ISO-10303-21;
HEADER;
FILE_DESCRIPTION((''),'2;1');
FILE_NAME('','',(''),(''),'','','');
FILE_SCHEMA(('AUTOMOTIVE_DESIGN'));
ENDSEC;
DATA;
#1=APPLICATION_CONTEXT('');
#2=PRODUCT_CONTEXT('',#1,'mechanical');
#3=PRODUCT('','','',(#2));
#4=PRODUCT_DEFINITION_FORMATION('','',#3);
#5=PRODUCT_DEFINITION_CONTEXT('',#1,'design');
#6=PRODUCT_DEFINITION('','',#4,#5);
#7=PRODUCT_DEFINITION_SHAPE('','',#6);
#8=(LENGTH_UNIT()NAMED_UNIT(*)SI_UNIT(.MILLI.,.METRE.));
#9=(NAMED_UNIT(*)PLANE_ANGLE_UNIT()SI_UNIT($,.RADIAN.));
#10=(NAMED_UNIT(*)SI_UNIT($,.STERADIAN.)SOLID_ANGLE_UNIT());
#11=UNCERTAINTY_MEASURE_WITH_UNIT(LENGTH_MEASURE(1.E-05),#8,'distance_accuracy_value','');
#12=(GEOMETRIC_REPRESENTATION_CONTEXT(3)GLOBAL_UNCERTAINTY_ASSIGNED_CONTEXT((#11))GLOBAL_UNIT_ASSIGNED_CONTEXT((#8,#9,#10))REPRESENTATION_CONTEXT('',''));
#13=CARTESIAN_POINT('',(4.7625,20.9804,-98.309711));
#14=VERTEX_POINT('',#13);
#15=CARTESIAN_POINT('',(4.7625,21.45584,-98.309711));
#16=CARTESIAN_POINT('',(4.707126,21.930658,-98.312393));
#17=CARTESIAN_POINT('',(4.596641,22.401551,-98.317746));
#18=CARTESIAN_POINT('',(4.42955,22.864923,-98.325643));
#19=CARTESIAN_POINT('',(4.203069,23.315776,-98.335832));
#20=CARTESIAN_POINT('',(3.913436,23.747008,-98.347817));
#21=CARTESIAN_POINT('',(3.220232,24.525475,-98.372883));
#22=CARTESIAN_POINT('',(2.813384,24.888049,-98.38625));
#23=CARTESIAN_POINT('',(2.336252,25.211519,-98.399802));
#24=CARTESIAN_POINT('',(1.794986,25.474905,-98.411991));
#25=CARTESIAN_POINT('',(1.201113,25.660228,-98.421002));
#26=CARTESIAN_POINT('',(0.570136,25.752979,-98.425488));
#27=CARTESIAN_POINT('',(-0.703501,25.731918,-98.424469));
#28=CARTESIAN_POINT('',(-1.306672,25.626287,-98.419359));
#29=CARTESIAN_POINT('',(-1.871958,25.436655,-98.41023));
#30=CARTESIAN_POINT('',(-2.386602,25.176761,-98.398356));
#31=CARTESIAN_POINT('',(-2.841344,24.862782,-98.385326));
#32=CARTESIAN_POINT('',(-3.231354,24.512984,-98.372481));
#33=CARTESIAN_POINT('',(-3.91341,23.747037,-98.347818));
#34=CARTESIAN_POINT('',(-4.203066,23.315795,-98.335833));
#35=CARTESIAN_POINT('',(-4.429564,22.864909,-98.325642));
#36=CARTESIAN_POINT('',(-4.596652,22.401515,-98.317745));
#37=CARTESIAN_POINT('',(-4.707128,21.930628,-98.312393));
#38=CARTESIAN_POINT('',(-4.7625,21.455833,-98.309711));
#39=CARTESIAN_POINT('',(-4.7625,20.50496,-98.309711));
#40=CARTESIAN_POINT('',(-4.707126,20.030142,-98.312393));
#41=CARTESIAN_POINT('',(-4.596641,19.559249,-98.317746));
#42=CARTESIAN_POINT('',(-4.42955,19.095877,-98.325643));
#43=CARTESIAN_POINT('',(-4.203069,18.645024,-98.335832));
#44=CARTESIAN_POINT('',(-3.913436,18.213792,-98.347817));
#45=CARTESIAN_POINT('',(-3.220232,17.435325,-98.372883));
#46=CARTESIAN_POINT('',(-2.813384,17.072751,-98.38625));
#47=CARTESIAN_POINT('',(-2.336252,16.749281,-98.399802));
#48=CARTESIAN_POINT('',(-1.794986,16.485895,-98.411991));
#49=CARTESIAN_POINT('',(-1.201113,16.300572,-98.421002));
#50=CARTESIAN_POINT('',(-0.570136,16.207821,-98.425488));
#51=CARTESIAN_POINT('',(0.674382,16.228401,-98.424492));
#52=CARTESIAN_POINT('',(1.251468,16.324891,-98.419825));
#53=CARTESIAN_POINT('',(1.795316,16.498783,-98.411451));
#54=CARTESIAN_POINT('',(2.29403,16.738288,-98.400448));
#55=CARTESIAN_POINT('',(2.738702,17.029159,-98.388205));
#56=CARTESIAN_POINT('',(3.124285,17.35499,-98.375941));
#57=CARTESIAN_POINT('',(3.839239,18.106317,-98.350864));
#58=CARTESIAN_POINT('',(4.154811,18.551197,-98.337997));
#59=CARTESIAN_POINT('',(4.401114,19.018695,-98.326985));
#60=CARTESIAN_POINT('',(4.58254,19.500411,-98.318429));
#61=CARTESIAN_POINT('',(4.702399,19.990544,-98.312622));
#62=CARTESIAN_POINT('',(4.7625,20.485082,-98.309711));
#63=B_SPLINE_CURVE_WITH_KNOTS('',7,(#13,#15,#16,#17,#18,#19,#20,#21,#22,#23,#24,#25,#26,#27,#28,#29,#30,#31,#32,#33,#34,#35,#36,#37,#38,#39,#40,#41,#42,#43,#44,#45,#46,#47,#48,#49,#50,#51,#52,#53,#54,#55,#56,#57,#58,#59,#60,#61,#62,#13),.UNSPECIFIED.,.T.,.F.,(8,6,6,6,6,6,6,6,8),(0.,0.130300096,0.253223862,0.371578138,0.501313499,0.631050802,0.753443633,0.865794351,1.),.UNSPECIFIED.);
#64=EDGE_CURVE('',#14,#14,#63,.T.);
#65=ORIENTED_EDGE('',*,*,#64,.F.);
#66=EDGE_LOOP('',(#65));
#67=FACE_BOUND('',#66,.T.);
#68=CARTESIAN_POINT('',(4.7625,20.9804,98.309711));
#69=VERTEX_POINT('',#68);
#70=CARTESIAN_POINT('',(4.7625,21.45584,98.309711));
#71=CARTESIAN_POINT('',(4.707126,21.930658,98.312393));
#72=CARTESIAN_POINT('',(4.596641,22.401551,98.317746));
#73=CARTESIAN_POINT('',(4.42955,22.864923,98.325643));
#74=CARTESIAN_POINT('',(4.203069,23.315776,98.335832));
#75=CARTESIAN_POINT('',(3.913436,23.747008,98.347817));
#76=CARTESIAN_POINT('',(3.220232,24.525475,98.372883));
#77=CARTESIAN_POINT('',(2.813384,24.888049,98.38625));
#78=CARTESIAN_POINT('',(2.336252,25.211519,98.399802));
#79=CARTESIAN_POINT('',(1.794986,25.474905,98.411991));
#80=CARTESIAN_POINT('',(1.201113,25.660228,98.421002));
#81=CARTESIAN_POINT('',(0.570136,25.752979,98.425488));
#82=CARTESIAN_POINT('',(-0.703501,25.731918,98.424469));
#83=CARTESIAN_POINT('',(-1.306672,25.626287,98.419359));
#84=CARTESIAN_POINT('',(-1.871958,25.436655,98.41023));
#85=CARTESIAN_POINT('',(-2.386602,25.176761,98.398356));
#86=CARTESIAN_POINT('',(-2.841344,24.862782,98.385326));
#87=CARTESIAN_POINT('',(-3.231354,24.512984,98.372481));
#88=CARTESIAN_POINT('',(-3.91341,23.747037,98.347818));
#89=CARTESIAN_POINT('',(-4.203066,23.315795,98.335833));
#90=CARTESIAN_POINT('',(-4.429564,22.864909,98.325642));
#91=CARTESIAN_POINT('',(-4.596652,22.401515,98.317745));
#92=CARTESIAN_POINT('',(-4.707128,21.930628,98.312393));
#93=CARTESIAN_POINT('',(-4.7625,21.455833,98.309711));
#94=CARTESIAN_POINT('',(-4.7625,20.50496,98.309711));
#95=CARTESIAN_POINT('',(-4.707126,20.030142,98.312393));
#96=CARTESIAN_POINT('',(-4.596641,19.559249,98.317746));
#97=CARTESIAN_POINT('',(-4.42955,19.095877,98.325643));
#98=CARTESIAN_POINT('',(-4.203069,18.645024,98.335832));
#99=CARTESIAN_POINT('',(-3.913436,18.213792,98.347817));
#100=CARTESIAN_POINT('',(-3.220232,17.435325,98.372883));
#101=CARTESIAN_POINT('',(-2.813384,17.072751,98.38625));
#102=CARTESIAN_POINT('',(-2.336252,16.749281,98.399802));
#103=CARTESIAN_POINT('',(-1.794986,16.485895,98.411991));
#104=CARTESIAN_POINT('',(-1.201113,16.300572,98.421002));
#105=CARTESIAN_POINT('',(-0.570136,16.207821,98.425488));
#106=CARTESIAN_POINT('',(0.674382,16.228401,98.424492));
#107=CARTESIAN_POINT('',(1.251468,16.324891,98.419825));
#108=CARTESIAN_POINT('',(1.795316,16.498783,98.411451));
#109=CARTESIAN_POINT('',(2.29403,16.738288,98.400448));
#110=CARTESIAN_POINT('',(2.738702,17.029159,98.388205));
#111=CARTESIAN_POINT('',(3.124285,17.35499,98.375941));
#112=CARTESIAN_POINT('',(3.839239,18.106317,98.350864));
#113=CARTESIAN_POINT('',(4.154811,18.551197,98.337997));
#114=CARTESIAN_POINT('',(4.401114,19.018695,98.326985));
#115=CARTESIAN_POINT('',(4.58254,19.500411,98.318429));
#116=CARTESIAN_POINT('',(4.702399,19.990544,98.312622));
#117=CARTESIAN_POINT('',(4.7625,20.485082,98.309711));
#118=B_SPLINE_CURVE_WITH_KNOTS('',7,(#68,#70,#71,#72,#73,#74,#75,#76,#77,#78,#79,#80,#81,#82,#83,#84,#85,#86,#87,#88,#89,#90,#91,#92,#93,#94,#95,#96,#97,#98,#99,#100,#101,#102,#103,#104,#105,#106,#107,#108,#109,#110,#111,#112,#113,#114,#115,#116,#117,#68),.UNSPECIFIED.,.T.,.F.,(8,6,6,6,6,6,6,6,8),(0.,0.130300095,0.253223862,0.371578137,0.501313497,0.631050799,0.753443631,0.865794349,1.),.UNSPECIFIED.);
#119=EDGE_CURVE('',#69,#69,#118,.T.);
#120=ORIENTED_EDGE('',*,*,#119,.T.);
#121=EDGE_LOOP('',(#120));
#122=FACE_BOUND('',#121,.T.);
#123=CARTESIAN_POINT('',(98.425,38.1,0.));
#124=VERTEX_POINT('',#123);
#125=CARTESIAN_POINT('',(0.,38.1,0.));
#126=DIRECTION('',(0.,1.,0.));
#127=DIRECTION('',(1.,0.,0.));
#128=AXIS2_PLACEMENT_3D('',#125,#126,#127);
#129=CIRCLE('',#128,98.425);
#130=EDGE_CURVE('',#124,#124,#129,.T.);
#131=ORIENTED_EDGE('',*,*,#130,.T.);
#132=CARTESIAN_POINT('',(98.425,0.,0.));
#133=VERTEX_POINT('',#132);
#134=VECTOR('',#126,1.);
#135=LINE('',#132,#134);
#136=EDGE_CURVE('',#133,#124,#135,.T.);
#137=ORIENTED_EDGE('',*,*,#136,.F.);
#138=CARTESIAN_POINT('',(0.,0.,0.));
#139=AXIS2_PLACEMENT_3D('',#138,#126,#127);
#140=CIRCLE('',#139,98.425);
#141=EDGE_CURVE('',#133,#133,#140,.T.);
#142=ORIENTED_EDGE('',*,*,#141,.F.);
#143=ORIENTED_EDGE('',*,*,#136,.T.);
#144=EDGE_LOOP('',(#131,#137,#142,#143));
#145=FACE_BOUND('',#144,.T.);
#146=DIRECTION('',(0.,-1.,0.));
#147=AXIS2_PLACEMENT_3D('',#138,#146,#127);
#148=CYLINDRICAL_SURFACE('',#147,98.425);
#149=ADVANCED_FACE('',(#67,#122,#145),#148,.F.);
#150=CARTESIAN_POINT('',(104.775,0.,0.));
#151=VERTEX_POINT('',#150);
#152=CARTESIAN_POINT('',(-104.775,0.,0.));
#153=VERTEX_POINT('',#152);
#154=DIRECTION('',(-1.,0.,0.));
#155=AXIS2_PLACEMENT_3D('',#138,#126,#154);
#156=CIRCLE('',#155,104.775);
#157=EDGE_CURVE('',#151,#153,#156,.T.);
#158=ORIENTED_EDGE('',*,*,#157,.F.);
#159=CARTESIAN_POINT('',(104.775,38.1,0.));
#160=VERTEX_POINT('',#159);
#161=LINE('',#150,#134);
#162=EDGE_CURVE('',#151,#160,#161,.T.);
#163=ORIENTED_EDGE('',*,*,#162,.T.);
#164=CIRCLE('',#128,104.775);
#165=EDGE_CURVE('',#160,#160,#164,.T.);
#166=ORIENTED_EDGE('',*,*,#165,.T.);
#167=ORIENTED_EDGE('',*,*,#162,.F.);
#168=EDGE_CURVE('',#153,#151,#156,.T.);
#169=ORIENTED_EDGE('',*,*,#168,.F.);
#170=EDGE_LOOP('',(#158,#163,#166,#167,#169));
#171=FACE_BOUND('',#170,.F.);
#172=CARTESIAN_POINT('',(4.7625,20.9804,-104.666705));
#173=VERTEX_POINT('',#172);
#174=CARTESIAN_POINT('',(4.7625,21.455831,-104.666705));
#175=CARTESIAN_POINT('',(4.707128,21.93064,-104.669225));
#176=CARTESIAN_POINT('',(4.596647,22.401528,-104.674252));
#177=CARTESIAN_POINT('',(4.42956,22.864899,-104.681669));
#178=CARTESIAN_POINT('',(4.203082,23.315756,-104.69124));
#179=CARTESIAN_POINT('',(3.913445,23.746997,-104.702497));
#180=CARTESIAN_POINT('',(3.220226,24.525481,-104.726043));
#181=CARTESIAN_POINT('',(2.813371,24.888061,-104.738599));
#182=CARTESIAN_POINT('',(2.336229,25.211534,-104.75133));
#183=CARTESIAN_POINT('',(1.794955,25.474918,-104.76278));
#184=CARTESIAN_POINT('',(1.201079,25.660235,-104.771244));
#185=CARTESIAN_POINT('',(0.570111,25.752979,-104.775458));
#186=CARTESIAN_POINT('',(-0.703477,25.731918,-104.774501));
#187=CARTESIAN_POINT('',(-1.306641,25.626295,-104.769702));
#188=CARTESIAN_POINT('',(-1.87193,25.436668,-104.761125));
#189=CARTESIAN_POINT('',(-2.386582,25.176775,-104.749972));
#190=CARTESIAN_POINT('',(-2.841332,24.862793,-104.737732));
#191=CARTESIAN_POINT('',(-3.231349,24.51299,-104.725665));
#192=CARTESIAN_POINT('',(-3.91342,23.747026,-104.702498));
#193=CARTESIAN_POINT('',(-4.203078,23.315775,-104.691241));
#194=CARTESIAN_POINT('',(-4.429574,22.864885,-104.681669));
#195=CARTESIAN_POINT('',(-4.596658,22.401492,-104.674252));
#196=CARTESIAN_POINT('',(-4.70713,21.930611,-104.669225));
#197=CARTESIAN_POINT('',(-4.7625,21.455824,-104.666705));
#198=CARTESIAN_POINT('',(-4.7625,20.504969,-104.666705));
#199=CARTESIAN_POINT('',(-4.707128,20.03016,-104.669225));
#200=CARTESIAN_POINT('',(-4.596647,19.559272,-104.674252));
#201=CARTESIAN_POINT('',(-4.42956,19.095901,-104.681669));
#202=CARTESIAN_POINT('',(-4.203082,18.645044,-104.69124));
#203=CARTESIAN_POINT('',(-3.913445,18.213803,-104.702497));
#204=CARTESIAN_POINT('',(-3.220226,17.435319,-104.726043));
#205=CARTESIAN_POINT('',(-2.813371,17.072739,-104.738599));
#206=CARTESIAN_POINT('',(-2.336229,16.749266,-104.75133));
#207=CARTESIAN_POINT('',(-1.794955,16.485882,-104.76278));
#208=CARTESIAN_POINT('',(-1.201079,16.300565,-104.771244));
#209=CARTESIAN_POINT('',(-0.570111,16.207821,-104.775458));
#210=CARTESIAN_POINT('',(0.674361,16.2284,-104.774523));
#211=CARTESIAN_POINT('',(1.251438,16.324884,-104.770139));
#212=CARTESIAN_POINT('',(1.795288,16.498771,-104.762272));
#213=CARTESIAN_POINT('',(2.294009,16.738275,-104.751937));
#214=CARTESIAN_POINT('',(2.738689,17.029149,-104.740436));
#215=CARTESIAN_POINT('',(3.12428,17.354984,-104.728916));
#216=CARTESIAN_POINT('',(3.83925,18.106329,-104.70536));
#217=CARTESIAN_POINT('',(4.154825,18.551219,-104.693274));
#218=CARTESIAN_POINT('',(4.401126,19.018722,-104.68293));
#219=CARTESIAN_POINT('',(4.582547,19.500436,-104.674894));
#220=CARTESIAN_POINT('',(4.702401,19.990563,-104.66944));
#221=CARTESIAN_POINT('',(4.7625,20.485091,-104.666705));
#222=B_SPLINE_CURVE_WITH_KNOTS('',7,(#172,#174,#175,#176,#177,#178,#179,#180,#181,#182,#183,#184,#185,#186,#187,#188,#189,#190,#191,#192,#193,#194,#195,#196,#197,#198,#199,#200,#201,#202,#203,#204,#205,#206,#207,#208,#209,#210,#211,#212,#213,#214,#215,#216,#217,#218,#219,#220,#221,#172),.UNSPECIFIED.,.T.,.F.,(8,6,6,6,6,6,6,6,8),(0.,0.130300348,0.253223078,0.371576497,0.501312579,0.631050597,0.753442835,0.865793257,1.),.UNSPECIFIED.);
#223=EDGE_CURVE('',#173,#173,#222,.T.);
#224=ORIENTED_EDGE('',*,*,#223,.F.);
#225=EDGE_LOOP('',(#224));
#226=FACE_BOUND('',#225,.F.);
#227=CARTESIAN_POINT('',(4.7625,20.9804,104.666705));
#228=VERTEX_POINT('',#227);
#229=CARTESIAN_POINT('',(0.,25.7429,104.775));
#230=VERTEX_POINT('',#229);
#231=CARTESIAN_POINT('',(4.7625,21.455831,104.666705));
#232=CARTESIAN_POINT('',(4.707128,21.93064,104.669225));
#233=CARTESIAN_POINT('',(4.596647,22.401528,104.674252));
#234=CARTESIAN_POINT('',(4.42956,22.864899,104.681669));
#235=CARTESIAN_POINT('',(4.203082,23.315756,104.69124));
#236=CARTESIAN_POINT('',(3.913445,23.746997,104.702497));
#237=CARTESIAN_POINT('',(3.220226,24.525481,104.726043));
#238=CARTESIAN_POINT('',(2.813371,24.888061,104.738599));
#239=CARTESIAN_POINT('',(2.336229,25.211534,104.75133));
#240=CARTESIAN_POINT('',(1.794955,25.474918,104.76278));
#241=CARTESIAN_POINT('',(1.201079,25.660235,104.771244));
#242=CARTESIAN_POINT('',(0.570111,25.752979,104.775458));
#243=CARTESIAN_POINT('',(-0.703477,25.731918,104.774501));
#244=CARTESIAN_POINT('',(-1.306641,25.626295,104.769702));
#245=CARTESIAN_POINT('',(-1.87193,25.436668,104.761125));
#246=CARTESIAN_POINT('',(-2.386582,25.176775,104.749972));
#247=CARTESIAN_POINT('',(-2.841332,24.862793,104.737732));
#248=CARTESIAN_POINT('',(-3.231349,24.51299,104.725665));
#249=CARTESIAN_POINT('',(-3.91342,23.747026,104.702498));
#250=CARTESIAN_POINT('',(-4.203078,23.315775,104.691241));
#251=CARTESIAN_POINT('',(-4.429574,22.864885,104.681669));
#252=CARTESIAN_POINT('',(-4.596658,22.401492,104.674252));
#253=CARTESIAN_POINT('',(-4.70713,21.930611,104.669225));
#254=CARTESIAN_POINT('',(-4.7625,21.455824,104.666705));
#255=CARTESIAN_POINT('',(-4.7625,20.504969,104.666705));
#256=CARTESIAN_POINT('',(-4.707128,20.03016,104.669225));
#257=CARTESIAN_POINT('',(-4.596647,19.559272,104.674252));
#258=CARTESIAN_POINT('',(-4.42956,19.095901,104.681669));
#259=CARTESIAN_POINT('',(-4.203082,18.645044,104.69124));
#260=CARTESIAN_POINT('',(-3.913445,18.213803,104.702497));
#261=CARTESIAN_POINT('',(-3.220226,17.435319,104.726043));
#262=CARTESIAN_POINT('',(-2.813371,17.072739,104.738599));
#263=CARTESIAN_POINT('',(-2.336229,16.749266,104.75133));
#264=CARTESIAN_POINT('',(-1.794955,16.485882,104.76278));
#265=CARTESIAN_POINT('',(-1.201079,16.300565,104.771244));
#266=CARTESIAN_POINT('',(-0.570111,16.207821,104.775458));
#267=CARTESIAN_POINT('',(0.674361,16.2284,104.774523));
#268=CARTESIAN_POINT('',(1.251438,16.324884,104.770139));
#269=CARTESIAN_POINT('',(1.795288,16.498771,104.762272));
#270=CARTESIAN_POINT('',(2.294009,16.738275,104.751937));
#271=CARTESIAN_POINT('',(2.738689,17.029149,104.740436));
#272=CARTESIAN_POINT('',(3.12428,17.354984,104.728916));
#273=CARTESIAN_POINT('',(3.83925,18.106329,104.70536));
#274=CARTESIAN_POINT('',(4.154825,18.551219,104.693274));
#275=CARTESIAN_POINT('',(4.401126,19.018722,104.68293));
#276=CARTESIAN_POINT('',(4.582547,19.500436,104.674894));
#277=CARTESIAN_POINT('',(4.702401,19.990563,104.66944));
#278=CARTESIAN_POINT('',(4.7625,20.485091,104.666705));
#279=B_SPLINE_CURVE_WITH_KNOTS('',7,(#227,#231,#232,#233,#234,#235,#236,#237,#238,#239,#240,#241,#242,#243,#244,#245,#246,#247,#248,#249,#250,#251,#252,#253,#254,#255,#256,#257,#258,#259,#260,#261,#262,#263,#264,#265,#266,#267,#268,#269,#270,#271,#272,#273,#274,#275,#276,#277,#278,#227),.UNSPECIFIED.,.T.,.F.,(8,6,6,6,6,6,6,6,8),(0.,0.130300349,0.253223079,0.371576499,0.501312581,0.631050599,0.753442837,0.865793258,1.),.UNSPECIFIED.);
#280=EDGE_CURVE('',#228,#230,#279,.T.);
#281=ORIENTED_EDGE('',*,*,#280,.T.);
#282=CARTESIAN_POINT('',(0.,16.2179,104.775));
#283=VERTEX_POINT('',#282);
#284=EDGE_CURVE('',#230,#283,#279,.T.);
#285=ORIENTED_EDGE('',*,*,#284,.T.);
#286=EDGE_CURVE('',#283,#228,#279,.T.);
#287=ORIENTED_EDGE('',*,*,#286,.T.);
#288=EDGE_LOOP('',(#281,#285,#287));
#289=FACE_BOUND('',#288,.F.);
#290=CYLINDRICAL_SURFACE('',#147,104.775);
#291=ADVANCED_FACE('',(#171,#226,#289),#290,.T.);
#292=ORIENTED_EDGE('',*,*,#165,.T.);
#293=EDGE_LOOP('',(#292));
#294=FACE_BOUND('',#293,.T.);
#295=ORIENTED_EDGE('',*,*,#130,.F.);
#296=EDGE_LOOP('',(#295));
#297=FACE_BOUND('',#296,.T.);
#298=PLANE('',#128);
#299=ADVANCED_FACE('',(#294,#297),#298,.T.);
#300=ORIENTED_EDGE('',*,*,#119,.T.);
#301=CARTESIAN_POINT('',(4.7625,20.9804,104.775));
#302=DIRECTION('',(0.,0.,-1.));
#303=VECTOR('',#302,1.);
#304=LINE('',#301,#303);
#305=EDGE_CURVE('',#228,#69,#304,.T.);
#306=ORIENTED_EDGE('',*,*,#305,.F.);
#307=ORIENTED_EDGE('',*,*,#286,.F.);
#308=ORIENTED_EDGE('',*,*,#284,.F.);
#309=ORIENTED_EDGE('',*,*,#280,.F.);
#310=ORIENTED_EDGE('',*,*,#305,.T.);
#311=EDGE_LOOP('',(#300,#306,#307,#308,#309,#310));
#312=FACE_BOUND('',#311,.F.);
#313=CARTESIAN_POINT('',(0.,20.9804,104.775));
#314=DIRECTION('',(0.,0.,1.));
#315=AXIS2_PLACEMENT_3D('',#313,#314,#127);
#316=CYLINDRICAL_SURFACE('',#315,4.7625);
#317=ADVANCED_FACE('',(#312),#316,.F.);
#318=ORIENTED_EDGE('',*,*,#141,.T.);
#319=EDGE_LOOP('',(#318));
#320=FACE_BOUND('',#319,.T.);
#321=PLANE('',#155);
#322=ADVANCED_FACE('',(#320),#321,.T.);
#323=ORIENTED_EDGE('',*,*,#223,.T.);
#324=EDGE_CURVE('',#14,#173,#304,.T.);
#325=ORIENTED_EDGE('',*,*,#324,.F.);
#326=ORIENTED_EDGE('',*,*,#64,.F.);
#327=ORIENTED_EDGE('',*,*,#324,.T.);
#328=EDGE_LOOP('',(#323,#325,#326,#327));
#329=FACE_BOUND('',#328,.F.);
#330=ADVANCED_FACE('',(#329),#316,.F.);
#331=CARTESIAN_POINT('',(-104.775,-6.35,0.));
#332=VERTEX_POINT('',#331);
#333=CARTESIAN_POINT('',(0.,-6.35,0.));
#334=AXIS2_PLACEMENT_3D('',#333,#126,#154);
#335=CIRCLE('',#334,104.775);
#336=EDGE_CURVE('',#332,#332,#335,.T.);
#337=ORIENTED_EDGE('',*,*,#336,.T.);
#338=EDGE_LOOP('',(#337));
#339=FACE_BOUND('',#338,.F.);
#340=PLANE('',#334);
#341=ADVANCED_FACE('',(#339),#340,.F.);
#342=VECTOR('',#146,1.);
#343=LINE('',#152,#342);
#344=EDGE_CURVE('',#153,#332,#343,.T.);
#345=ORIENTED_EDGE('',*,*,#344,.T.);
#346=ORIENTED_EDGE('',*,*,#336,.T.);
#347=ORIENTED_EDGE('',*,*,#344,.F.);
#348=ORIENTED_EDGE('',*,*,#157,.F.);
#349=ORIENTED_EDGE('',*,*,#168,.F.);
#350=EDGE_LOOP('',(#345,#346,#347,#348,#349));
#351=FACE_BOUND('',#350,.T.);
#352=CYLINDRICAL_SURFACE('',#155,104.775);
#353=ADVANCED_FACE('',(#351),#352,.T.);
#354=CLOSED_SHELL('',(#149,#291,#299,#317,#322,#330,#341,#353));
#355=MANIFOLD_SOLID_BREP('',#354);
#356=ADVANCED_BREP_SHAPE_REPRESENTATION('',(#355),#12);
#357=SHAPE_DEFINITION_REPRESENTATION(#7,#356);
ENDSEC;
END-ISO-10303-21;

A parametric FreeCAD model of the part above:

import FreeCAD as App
import Part
import Sketcher

V = App.Vector
Q = App.Units.Quantity

doc = App.newDocument("Part")
body = doc.addObject("PartDesign::Body", "Body")

sketch1 = body.newObject("Sketcher::SketchObject", "Sketch")
sketch1.AttachmentSupport = (doc.getObject("XZ_Plane"), [""])
sketch1.MapMode = "FlatFace"
sketch1.addGeometry(Part.Circle(V(0, 0, 0), V(0, 0, 1), 105), False)
sketch1.addConstraint([
    Sketcher.Constraint("Coincident", 0, 3, -1, 1),
    Sketcher.Constraint("Diameter", 0, Q("8.25 in")),
])
pad1 = body.newObject("PartDesign::Pad", "Pad")
pad1.Profile = sketch1
pad1.Length = Q("0.25 in")

sketch2 = body.newObject("Sketcher::SketchObject", "Sketch001")
sketch2.AttachmentSupport = (doc.getObject("XZ_Plane"), [""])
sketch2.MapMode = "FlatFace"
sketch2.addGeometry([
    Part.Circle(V(0, 0, 0), V(0, 0, 1), 105),
    Part.Circle(V(0, 0, 0), V(0, 0, 1), 98),
], False)
sketch2.addConstraint([
    Sketcher.Constraint("Coincident", 0, 3, -1, 1),
    Sketcher.Constraint("Coincident", 1, 3, -1, 1),
    Sketcher.Constraint("Diameter", 0, Q("8.25 in")),
    Sketcher.Constraint("Diameter", 1, Q("7.75 in")),
])
pad2 = body.newObject("PartDesign::Pad", "Pad001")
pad2.Profile = sketch2
pad2.Length = Q("1.5 in")
pad2.Reversed = True

sketch3 = body.newObject("Sketcher::SketchObject", "Sketch002")
sketch3.AttachmentSupport = (doc.getObject("XY_Plane"), [""])
sketch3.MapMode = "FlatFace"
sketch3.AttachmentOffset = App.Placement(V(0, 0, 4.125 * 25.4), App.Rotation())
sketch3.addGeometry(Part.Circle(V(0, 21, 0), V(0, 0, 1), 4.8), False)
sketch3.addConstraint([
    Sketcher.Constraint("PointOnObject", 0, 3, -2),
    Sketcher.Constraint("Diameter", 0, Q("0.375 in")),
    Sketcher.Constraint("DistanceY", -1, 1, 0, 3, Q("0.826 in")),
])
pocket1 = body.newObject("PartDesign::Pocket", "Pocket")
pocket1.Profile = sketch3
pocket1.Type = "ThroughAll"

doc.recompute()
